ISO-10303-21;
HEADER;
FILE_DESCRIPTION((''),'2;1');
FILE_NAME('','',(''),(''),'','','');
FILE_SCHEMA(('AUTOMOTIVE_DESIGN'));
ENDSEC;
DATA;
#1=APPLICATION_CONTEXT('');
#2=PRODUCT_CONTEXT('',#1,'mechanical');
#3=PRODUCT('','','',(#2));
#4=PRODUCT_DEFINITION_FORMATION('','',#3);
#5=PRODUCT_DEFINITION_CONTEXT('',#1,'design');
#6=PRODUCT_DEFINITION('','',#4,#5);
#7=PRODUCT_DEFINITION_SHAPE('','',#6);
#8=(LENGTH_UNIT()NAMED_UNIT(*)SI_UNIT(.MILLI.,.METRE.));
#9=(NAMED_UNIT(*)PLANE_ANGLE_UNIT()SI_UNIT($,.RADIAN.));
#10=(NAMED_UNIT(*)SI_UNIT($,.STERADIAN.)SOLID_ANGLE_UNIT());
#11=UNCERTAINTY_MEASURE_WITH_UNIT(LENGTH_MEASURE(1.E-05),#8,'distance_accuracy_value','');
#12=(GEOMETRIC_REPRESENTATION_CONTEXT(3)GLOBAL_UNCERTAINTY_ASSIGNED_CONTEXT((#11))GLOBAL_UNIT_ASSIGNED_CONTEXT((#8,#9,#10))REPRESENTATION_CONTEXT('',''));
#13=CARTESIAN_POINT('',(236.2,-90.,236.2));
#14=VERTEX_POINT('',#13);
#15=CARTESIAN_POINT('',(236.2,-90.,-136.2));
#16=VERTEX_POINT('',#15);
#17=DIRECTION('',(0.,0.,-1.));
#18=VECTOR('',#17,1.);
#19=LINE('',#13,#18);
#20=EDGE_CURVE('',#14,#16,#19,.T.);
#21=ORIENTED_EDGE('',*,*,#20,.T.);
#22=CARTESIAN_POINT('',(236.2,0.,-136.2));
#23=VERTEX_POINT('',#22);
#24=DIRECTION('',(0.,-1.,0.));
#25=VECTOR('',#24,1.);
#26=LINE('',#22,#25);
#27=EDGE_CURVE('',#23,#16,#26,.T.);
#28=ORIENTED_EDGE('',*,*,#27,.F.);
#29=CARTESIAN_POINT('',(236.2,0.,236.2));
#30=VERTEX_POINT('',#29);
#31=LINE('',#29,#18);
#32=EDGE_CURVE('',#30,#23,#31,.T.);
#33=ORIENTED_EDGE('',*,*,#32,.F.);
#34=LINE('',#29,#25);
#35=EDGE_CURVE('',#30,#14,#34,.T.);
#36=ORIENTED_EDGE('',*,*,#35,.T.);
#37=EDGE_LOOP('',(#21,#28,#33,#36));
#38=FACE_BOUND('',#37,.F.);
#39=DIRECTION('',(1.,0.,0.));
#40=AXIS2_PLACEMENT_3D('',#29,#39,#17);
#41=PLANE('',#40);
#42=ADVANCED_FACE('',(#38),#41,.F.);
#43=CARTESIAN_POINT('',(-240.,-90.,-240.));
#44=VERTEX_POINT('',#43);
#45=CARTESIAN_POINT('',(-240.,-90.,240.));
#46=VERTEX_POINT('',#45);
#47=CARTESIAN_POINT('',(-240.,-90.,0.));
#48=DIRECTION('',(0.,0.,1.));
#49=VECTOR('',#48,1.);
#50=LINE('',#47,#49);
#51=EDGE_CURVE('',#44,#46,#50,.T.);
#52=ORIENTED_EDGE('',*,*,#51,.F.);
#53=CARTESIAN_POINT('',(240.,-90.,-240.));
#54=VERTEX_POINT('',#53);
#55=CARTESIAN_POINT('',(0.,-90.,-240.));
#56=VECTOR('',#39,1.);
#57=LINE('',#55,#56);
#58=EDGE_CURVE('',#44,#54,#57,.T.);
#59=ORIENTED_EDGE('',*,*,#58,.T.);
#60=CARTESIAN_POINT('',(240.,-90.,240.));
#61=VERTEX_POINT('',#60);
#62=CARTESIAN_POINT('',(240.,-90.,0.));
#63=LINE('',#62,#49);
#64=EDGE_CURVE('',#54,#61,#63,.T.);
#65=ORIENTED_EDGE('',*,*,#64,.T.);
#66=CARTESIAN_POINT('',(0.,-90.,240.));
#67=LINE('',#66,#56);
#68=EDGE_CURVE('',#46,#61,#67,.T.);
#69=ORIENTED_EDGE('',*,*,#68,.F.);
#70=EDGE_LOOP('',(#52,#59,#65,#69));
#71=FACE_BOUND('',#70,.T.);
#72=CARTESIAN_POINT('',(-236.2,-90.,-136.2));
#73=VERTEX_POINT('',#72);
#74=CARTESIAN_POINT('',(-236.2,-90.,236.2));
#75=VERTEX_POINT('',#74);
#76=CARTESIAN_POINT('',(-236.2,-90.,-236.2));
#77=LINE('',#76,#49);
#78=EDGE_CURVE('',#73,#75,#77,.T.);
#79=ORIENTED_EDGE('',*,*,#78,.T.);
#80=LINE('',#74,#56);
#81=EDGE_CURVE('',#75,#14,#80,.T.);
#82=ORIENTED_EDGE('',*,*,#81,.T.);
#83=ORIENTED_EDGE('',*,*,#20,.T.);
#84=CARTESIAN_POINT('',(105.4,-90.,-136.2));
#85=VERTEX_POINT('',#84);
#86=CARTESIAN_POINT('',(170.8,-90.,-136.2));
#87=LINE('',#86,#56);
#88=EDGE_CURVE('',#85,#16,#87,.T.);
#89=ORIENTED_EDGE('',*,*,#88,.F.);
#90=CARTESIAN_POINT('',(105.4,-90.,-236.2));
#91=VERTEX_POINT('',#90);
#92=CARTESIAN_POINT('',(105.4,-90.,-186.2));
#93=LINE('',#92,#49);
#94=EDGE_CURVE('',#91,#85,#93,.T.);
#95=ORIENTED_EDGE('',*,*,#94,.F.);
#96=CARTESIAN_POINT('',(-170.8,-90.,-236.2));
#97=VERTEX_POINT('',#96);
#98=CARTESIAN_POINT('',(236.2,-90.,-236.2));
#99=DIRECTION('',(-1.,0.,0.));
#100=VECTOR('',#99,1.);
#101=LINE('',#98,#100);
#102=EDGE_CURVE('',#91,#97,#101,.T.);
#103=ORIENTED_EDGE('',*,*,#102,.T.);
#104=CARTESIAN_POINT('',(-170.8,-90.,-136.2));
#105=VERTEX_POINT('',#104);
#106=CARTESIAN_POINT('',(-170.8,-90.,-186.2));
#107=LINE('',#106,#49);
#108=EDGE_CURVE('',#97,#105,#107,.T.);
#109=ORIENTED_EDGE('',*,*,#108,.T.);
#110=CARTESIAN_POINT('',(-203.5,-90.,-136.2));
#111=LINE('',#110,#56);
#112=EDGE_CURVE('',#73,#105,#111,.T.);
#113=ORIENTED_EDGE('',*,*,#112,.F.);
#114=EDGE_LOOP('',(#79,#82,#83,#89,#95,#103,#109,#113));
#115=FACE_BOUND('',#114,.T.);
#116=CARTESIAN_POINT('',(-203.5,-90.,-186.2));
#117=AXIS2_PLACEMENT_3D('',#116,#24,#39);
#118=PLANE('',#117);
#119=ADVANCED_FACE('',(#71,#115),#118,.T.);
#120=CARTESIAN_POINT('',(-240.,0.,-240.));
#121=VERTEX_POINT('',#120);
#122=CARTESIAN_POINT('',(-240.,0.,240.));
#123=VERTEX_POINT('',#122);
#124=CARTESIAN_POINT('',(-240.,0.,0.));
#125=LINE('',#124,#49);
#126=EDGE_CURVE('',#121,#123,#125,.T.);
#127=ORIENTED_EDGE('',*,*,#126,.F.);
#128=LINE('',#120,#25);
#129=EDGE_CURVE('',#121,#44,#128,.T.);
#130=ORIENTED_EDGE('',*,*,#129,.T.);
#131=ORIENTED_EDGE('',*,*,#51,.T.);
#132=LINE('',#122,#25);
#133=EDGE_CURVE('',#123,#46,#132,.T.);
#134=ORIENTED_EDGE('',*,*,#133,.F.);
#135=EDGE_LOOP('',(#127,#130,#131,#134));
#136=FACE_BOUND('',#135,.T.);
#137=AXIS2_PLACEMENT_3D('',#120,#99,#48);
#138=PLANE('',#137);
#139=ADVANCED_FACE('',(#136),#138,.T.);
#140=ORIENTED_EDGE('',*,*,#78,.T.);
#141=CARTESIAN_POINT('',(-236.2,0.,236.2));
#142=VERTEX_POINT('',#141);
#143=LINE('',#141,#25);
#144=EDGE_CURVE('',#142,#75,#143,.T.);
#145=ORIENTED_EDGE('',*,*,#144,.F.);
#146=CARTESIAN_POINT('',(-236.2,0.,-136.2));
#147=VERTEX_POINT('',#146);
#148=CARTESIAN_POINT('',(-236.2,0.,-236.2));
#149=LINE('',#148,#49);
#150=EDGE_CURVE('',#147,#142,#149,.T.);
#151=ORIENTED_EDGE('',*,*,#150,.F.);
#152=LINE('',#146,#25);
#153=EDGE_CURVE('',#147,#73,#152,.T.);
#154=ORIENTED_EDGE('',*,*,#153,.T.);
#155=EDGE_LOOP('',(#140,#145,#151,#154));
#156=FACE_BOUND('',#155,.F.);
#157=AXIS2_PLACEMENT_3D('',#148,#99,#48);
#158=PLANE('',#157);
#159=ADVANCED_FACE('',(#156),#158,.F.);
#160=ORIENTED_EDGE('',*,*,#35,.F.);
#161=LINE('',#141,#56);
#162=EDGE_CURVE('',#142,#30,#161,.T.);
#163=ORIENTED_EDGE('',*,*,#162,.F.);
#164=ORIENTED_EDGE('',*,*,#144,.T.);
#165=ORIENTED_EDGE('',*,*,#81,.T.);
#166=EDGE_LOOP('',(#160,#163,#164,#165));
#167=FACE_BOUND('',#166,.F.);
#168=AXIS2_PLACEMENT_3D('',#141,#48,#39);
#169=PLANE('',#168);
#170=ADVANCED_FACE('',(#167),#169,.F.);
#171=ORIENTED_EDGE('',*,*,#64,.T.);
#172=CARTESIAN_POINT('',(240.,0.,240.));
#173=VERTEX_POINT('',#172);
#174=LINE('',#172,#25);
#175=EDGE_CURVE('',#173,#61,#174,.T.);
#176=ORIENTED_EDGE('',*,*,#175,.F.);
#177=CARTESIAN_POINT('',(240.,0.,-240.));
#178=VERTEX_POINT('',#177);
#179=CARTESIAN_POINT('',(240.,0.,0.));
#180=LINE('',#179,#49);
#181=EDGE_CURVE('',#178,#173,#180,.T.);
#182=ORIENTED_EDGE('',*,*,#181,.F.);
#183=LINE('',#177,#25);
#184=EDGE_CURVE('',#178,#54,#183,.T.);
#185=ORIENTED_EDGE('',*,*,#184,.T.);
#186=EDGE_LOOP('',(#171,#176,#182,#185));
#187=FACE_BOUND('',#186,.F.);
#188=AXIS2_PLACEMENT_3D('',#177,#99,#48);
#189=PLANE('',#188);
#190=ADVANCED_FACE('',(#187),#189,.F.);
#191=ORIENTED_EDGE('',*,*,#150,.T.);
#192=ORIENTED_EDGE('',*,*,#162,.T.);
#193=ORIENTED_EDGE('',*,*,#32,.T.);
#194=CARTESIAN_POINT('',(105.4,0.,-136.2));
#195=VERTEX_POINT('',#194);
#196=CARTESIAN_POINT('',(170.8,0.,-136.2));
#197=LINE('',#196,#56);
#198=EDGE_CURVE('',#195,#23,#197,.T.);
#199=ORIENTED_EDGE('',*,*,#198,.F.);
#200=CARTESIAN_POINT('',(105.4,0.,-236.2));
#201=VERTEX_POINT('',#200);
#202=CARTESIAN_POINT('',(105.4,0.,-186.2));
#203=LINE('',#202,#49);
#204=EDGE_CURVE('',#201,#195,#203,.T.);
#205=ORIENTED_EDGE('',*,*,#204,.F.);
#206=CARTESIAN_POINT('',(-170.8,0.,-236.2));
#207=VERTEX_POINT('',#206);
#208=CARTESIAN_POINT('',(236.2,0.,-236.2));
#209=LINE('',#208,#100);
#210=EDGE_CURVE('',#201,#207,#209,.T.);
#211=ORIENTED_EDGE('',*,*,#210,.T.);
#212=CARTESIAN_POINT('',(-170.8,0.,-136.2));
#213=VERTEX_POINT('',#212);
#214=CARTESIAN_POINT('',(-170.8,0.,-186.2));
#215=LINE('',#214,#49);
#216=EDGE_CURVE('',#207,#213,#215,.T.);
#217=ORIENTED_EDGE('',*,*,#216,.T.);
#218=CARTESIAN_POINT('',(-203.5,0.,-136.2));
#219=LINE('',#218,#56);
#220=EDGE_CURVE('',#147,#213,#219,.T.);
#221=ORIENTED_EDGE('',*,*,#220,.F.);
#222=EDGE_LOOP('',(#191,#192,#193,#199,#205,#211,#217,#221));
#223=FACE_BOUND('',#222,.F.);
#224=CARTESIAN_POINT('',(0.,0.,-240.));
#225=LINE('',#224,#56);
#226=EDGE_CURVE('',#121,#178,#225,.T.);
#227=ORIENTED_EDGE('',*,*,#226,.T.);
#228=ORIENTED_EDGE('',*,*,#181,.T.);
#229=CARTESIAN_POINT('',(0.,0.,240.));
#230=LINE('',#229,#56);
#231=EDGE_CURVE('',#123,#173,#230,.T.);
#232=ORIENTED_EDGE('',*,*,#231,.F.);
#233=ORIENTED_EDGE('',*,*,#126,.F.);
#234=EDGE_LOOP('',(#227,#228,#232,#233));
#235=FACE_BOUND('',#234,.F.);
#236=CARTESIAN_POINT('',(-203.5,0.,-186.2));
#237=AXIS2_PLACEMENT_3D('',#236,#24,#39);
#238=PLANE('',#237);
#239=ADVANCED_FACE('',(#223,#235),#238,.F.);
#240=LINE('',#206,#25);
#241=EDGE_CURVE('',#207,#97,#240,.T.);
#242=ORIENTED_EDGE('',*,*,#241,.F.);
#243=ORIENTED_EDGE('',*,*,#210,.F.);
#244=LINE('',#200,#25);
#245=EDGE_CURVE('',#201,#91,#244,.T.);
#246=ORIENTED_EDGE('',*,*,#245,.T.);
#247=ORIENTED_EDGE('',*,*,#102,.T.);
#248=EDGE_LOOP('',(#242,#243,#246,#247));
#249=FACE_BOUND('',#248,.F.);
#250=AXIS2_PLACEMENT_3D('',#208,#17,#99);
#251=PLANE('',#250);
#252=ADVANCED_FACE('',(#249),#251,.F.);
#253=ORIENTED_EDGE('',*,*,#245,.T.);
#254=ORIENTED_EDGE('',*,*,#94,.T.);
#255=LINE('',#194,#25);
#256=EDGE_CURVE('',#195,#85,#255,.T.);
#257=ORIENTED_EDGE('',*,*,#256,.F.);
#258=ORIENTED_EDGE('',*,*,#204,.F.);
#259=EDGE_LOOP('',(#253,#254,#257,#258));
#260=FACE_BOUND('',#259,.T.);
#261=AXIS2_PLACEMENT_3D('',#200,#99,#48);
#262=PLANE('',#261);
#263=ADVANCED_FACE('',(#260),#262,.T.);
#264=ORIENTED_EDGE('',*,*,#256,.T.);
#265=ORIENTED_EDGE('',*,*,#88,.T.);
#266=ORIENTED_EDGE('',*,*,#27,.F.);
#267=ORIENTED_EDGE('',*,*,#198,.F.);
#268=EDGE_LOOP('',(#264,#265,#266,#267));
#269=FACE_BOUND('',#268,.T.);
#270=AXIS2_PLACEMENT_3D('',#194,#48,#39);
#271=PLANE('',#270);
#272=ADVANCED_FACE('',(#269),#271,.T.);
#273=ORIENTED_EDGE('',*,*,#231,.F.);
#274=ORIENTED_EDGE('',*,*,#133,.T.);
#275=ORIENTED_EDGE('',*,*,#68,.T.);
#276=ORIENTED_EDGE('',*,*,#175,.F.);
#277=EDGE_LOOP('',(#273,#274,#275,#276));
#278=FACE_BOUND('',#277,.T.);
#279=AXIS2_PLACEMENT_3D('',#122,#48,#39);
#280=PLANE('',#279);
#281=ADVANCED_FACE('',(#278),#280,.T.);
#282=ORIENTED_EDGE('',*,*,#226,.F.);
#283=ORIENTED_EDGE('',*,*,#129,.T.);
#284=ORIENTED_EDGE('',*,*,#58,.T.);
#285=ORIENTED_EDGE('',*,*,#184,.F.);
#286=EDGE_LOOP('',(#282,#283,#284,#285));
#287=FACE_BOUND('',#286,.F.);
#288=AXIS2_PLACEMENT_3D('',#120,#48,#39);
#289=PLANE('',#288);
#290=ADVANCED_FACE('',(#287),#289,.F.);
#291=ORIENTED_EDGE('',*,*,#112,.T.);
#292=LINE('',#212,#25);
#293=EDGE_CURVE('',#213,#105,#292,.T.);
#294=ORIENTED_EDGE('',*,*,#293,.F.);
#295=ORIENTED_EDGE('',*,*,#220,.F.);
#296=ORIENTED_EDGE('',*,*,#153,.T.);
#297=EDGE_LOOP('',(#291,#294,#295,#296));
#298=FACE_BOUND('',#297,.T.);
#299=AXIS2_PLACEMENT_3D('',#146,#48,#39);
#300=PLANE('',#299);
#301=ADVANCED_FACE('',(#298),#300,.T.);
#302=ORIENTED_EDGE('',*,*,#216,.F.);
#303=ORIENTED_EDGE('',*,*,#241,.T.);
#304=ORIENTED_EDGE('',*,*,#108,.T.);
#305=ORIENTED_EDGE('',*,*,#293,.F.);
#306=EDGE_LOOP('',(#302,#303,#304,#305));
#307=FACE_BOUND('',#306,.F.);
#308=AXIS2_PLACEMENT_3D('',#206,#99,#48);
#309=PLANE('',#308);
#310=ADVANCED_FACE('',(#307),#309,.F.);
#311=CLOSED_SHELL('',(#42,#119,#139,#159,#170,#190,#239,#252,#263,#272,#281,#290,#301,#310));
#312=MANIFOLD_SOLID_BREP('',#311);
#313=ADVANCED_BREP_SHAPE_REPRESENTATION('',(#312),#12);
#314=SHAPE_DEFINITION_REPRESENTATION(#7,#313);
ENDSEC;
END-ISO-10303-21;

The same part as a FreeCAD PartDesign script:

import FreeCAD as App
import Part
import Sketcher
from FreeCAD import Vector
Q = App.Units.Quantity

doc = App.newDocument("Part")
params = doc.addObject("Spreadsheet::Sheet", "Params")
for row, (alias, value) in enumerate([
    ("sketch1_width", "480 mm"),
    ("sketch1_width2", "472.4 mm"),
    ("pad1_length", "90 mm"),
    ("sketch2_height", "100 mm"),
    ("sketch2_width", "65.4 mm"),
    ("sketch2_width2", "130.8 mm"),
    ("pad2_length", "90 mm"),
], start=1):
    params.set(f"A{row}", alias)
    params.set(f"B{row}", "=" + value)
    params.setAlias(f"B{row}", alias)

body = doc.addObject("PartDesign::Body", "Body")

# Sketch on XZ plane
sketch1 = body.newObject("Sketcher::SketchObject", "Sketch")
sketch1.AttachmentSupport = (doc.getObject("XZ_Plane"), [""])
sketch1.MapMode = "FlatFace"
sketch1.addGeometry(Part.LineSegment(Vector(-240, 240, 0), Vector(-240, -240, 0)), False)
sketch1.addGeometry(Part.LineSegment(Vector(-240, -240, 0), Vector(240, -240, 0)), False)
sketch1.addGeometry(Part.LineSegment(Vector(240, -240, 0), Vector(240, 240, 0)), False)
sketch1.addGeometry(Part.LineSegment(Vector(240, 240, 0), Vector(-240, 240, 0)), False)
sketch1.addGeometry(Part.LineSegment(Vector(236, -236, 0), Vector(-236, -236, 0)), False)
sketch1.addGeometry(Part.LineSegment(Vector(-236, -236, 0), Vector(-236, 236, 0)), False)
sketch1.addGeometry(Part.LineSegment(Vector(-236, 236, 0), Vector(236, 236, 0)), False)
sketch1.addGeometry(Part.LineSegment(Vector(236, 236, 0), Vector(236, -236, 0)), False)
sketch1.addConstraint(Sketcher.Constraint("Coincident", 0, 2, 1, 1))
sketch1.addConstraint(Sketcher.Constraint("Coincident", 1, 2, 2, 1))
sketch1.addConstraint(Sketcher.Constraint("Coincident", 2, 2, 3, 1))
sketch1.addConstraint(Sketcher.Constraint("Coincident", 3, 2, 0, 1))
sketch1.addConstraint(Sketcher.Constraint("Coincident", 4, 2, 5, 1))
sketch1.addConstraint(Sketcher.Constraint("Coincident", 5, 2, 6, 1))
sketch1.addConstraint(Sketcher.Constraint("Coincident", 6, 2, 7, 1))
sketch1.addConstraint(Sketcher.Constraint("Coincident", 7, 2, 4, 1))
sketch1.addConstraint(Sketcher.Constraint("Vertical", 0))
sketch1.addConstraint(Sketcher.Constraint("Horizontal", 1))
sketch1.addConstraint(Sketcher.Constraint("Vertical", 2))
sketch1.addConstraint(Sketcher.Constraint("Horizontal", 3))
sketch1.addConstraint(Sketcher.Constraint("Horizontal", 4))
sketch1.addConstraint(Sketcher.Constraint("Vertical", 5))
sketch1.addConstraint(Sketcher.Constraint("Horizontal", 6))
sketch1.addConstraint(Sketcher.Constraint("Vertical", 7))
sketch1.addConstraint(Sketcher.Constraint("Symmetric", 0, 2, 2, 2, -1, 1))
sketch1.addConstraint(Sketcher.Constraint("Symmetric", 4, 2, 6, 2, -1, 1))
sketch1.addConstraint(Sketcher.Constraint("Equal", 3, 0))
sketch1.addConstraint(Sketcher.Constraint("Equal", 6, 5))
sketch1.addConstraint(Sketcher.Constraint("DistanceX", 1, 1, 1, 2, Q("480 mm")))
sketch1.addConstraint(Sketcher.Constraint("DistanceX", 4, 2, 4, 1, Q("472.4 mm")))
sketch1.setExpression("Constraints[20]", "Params.sketch1_width")
sketch1.setExpression("Constraints[21]", "Params.sketch1_width2")
pad1 = body.newObject("PartDesign::Pad", "Pad")
pad1.Profile = sketch1
pad1.setExpression("Length", "Params.pad1_length")

# Sketch on XZ plane
sketch2 = body.newObject("Sketcher::SketchObject", "Sketch001")
sketch2.AttachmentSupport = (doc.getObject("XZ_Plane"), [""])
sketch2.MapMode = "FlatFace"
sketch2.addGeometry(Part.LineSegment(Vector(-236, -136, 0), Vector(-236, -236, 0)), False)
sketch2.addGeometry(Part.LineSegment(Vector(-236, -236, 0), Vector(-171, -236, 0)), False)
sketch2.addGeometry(Part.LineSegment(Vector(-171, -236, 0), Vector(-171, -136, 0)), False)
sketch2.addGeometry(Part.LineSegment(Vector(-171, -136, 0), Vector(-236, -136, 0)), False)
sketch2.addGeometry(Part.LineSegment(Vector(105, -136, 0), Vector(105, -236, 0)), False)
sketch2.addGeometry(Part.LineSegment(Vector(105, -236, 0), Vector(236, -236, 0)), False)
sketch2.addGeometry(Part.LineSegment(Vector(236, -236, 0), Vector(236, -136, 0)), False)
sketch2.addGeometry(Part.LineSegment(Vector(236, -136, 0), Vector(105, -136, 0)), False)
sketch2.addConstraint(Sketcher.Constraint("Coincident", 0, 2, 1, 1))
sketch2.addConstraint(Sketcher.Constraint("Coincident", 1, 2, 2, 1))
sketch2.addConstraint(Sketcher.Constraint("Coincident", 2, 2, 3, 1))
sketch2.addConstraint(Sketcher.Constraint("Coincident", 3, 2, 0, 1))
sketch2.addConstraint(Sketcher.Constraint("Coincident", 4, 2, 5, 1))
sketch2.addConstraint(Sketcher.Constraint("Coincident", 5, 2, 6, 1))
sketch2.addConstraint(Sketcher.Constraint("Coincident", 6, 2, 7, 1))
sketch2.addConstraint(Sketcher.Constraint("Coincident", 7, 2, 4, 1))
sketch2.addConstraint(Sketcher.Constraint("Vertical", 0))
sketch2.addConstraint(Sketcher.Constraint("Horizontal", 1))
sketch2.addConstraint(Sketcher.Constraint("Vertical", 2))
sketch2.addConstraint(Sketcher.Constraint("Horizontal", 3))
sketch2.addConstraint(Sketcher.Constraint("Vertical", 4))
sketch2.addConstraint(Sketcher.Constraint("Horizontal", 5))
sketch2.addConstraint(Sketcher.Constraint("Vertical", 6))
sketch2.addConstraint(Sketcher.Constraint("Horizontal", 7))
sketch2.addConstraint(Sketcher.Constraint("Symmetric", 0, 2, 5, 2, -2))
sketch2.addConstraint(Sketcher.Constraint("Horizontal", 3, 2, 6, 2))
sketch2.addConstraint(Sketcher.Constraint("DistanceY", 0, 2, 0, 1, Q("100 mm")))
sketch2.addConstraint(Sketcher.Constraint("DistanceX", 1, 1, 1, 2, Q("65.4 mm")))
sketch2.addConstraint(Sketcher.Constraint("DistanceX", 5, 1, 5, 2, Q("130.8 mm")))
sketch2.addConstraint(Sketcher.Constraint("DistanceX", 1, 2, 5, 2, Q("407 mm")))
sketch2.addConstraint(Sketcher.Constraint("DistanceY", 0, 2, -1, 1, Q("236.2 mm")))
sketch2.setExpression("Constraints[18]", "Params.sketch2_height")
sketch2.setExpression("Constraints[19]", "Params.sketch2_width")
sketch2.setExpression("Constraints[20]", "Params.sketch2_width2")
pad2 = body.newObject("PartDesign::Pad", "Pad001")
pad2.Profile = sketch2
pad2.setExpression("Length", "Params.pad2_length")

doc.recompute()
